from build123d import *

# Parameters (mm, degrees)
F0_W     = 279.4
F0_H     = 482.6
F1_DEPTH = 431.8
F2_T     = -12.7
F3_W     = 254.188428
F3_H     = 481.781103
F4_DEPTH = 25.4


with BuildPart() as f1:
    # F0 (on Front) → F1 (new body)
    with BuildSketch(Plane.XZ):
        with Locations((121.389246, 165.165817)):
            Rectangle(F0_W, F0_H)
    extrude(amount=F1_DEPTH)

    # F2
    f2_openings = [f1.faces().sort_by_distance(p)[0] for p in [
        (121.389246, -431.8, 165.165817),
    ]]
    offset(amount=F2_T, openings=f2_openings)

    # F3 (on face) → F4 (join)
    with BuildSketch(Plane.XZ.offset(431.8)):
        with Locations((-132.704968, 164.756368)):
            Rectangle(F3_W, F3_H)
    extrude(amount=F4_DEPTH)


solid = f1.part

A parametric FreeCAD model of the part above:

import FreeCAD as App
import Part
import Sketcher
Q = App.Units.Quantity


def faces_at(feature, points):
    """Names of the faces that lie closest to the given points."""
    faces = feature.Shape.Faces
    near = lambda p: min(range(len(faces)), key=lambda i: faces[i].distToShape(Part.Vertex(*p))[0])
    return sorted({f"Face{near(p) + 1}" for p in points})

doc = App.newDocument("Part")
params = doc.addObject("Spreadsheet::Sheet", "Params")
for row, (alias, value) in enumerate([
    ("sketch1_width", "11 in"),
    ("sketch1_height", "19 in"),
    ("pad1_length", "17 in"),
    ("thickness_wall", "0.5 in"),
    ("pad2_length", "1 in"),
], start=1):
    params.set(f"A{row}", alias)
    params.set(f"B{row}", "=" + value)
    params.setAlias(f"B{row}", alias)

body = doc.addObject("PartDesign::Body", "Body")

sketch1 = doc.addObject("Sketcher::SketchObject", "Sketch")
body.addObject(sketch1)
sketch1.AttachmentSupport = (doc.XZ_Plane, [""])
sketch1.MapMode = "FlatFace"
sketch1.addGeometry(Part.LineSegment(App.Vector(-18, 406, 0), App.Vector(-18, -76, 0)), False)
sketch1.addGeometry(Part.LineSegment(App.Vector(-18, -76, 0), App.Vector(261, -76, 0)), False)
sketch1.addGeometry(Part.LineSegment(App.Vector(261, -76, 0), App.Vector(261, 406, 0)), False)
sketch1.addGeometry(Part.LineSegment(App.Vector(261, 406, 0), App.Vector(-18, 406, 0)), False)
sketch1.addConstraint(Sketcher.Constraint("Coincident", 0, 2, 1, 1))
sketch1.addConstraint(Sketcher.Constraint("Coincident", 1, 2, 2, 1))
sketch1.addConstraint(Sketcher.Constraint("Coincident", 2, 2, 3, 1))
sketch1.addConstraint(Sketcher.Constraint("Coincident", 3, 2, 0, 1))
sketch1.addConstraint(Sketcher.Constraint("Vertical", 0))
sketch1.addConstraint(Sketcher.Constraint("Horizontal", 1))
sketch1.addConstraint(Sketcher.Constraint("Vertical", 2))
sketch1.addConstraint(Sketcher.Constraint("Horizontal", 3))
sketch1.addConstraint(Sketcher.Constraint("DistanceX", 1, 1, 1, 2, Q("11 in")))
sketch1.addConstraint(Sketcher.Constraint("DistanceY", 0, 2, 0, 1, Q("19 in")))
sketch1.addConstraint(Sketcher.Constraint("DistanceX", 0, 2, -1, 1, 18.310754))
sketch1.addConstraint(Sketcher.Constraint("DistanceY", 0, 2, -1, 1, 76.134183))
sketch1.setExpression("Constraints[8]", "Params.sketch1_width")
sketch1.setExpression("Constraints[9]", "Params.sketch1_height")
pad1 = doc.addObject("PartDesign::Pad", "Pad")
body.addObject(pad1)
pad1.Profile = sketch1
pad1.setExpression("Length", "Params.pad1_length")
doc.recompute()

thickness = doc.addObject("PartDesign::Thickness", "Thickness")
body.addObject(thickness)
thickness.Base = (pad1, faces_at(pad1, [(121.389, -431.8, 165.166)]))
thickness.setExpression("Value", "Params.thickness_wall")
thickness.Reversed = True
thickness.Join = "Arc"

sketch2 = doc.addObject("Sketcher::SketchObject", "Sketch001")
body.addObject(sketch2)
sketch2.AttachmentSupport = (doc.XZ_Plane, [""])
sketch2.MapMode = "FlatFace"
sketch2.AttachmentOffset = App.Placement(App.Vector(0, 0, 17 * 25.4), App.Rotation())
sketch2.addGeometry(Part.LineSegment(App.Vector(-260, 406, 0), App.Vector(-260, -76, 0)), False)
sketch2.addGeometry(Part.LineSegment(App.Vector(-260, -76, 0), App.Vector(-6, -76, 0)), False)
sketch2.addGeometry(Part.LineSegment(App.Vector(-6, -76, 0), App.Vector(-6, 406, 0)), False)
sketch2.addGeometry(Part.LineSegment(App.Vector(-6, 406, 0), App.Vector(-260, 406, 0)), False)
sketch2.addConstraint(Sketcher.Constraint("Coincident", 0, 2, 1, 1))
sketch2.addConstraint(Sketcher.Constraint("Coincident", 1, 2, 2, 1))
sketch2.addConstraint(Sketcher.Constraint("Coincident", 2, 2, 3, 1))
sketch2.addConstraint(Sketcher.Constraint("Coincident", 3, 2, 0, 1))
sketch2.addConstraint(Sketcher.Constraint("Vertical", 0))
sketch2.addConstraint(Sketcher.Constraint("Horizontal", 1))
sketch2.addConstraint(Sketcher.Constraint("Vertical", 2))
sketch2.addConstraint(Sketcher.Constraint("Horizontal", 3))
sketch2.addConstraint(Sketcher.Constraint("DistanceX", 1, 1, 1, 2, 254.188428))
sketch2.addConstraint(Sketcher.Constraint("DistanceY", 0, 2, 0, 1, 481.781103))
sketch2.addConstraint(Sketcher.Constraint("DistanceX", 0, 2, -1, 1, 259.799182))
sketch2.addConstraint(Sketcher.Constraint("DistanceY", -1, 1, 2, 2, 405.64692))
pad2 = doc.addObject("PartDesign::Pad", "Pad001")
body.addObject(pad2)
pad2.Profile = sketch2
pad2.setExpression("Length", "Params.pad2_length")

doc.recompute()
